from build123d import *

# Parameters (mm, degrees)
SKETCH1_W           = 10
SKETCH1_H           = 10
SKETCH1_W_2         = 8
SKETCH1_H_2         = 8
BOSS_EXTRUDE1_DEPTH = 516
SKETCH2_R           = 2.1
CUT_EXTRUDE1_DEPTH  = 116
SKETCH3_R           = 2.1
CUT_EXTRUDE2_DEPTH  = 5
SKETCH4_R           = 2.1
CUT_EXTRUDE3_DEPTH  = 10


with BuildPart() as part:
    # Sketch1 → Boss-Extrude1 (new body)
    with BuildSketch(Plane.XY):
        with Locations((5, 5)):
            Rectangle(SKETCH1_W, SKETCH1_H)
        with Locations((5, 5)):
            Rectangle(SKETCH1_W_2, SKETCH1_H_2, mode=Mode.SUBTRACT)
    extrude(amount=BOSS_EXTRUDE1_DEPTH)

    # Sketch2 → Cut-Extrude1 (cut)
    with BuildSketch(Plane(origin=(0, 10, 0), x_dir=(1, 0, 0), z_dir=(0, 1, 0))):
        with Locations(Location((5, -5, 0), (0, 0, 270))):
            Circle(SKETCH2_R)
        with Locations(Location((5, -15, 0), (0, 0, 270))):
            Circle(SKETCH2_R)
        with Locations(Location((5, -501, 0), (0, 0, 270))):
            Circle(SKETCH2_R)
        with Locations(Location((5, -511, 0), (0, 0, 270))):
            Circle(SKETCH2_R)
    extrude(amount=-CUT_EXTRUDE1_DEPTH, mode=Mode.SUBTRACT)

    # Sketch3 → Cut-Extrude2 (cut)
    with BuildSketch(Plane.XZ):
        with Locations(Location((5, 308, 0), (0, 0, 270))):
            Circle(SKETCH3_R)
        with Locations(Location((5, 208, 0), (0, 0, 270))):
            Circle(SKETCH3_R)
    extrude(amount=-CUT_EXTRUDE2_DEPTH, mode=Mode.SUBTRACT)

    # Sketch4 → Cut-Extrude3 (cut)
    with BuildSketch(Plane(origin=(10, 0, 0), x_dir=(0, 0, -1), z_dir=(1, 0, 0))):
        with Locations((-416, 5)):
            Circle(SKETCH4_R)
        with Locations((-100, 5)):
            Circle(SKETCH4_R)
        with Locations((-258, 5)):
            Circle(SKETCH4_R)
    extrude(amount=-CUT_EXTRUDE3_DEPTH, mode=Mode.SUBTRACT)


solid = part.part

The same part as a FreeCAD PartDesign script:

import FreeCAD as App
import Part
import Sketcher

doc = App.newDocument("Part")
body = doc.addObject("PartDesign::Body", "Body")

# Sketch on XY plane
sketch1 = body.newObject("Sketcher::SketchObject", "Sketch")
sketch1.AttachmentSupport = (doc.getObject("XY_Plane"), [""])
sketch1.MapMode = "FlatFace"
sketch1.addGeometry(Part.LineSegment(App.Vector(0, 10, 0), App.Vector(0, 0, 0)), False)
sketch1.addGeometry(Part.LineSegment(App.Vector(0, 0, 0), App.Vector(10, 0, 0)), False)
sketch1.addGeometry(Part.LineSegment(App.Vector(10, 0, 0), App.Vector(10, 10, 0)), False)
sketch1.addGeometry(Part.LineSegment(App.Vector(10, 10, 0), App.Vector(0, 10, 0)), False)
sketch1.addGeometry(Part.LineSegment(App.Vector(9, 1, 0), App.Vector(1, 1, 0)), False)
sketch1.addGeometry(Part.LineSegment(App.Vector(1, 1, 0), App.Vector(1, 9, 0)), False)
sketch1.addGeometry(Part.LineSegment(App.Vector(1, 9, 0), App.Vector(9, 9, 0)), False)
sketch1.addGeometry(Part.LineSegment(App.Vector(9, 9, 0), App.Vector(9, 1, 0)), False)
sketch1.addConstraint(Sketcher.Constraint("Coincident", 0, 2, 1, 1))
sketch1.addConstraint(Sketcher.Constraint("Coincident", 1, 2, 2, 1))
sketch1.addConstraint(Sketcher.Constraint("Coincident", 2, 2, 3, 1))
sketch1.addConstraint(Sketcher.Constraint("Coincident", 3, 2, 0, 1))
sketch1.addConstraint(Sketcher.Constraint("Coincident", 4, 2, 5, 1))
sketch1.addConstraint(Sketcher.Constraint("Coincident", 5, 2, 6, 1))
sketch1.addConstraint(Sketcher.Constraint("Coincident", 6, 2, 7, 1))
sketch1.addConstraint(Sketcher.Constraint("Coincident", 7, 2, 4, 1))
sketch1.addConstraint(Sketcher.Constraint("Vertical", 0))
sketch1.addConstraint(Sketcher.Constraint("Horizontal", 1))
sketch1.addConstraint(Sketcher.Constraint("Vertical", 2))
sketch1.addConstraint(Sketcher.Constraint("Horizontal", 3))
sketch1.addConstraint(Sketcher.Constraint("Horizontal", 4))
sketch1.addConstraint(Sketcher.Constraint("Vertical", 5))
sketch1.addConstraint(Sketcher.Constraint("Horizontal", 6))
sketch1.addConstraint(Sketcher.Constraint("Vertical", 7))
sketch1.addConstraint(Sketcher.Constraint("Coincident", 0, 2, -1, 1))
sketch1.addConstraint(Sketcher.Constraint("Equal", 3, 0))
sketch1.addConstraint(Sketcher.Constraint("Equal", 6, 5))
sketch1.addConstraint(Sketcher.Constraint("DistanceX", 1, 1, 1, 2, 10.0))
sketch1.addConstraint(Sketcher.Constraint("DistanceX", 4, 2, 4, 1, 8.0))
sketch1.addConstraint(Sketcher.Constraint("DistanceX", -1, 1, 4, 2, 1.0))
sketch1.addConstraint(Sketcher.Constraint("DistanceY", -1, 1, 4, 2, 1.0))
pad1 = body.newObject("PartDesign::Pad", "Pad")
pad1.Profile = sketch1
pad1.Length = 516

# Sketch on XZ plane
sketch2 = body.newObject("Sketcher::SketchObject", "Sketch001")
sketch2.AttachmentSupport = (doc.getObject("XZ_Plane"), [""])
sketch2.MapMode = "FlatFace"
sketch2.AttachmentOffset = App.Placement(App.Vector(0, 0, -10), App.Rotation())
sketch2.addGeometry(Part.Circle(App.Vector(5, 5, 0), App.Vector(0, 0, 1), 2.1), False)
sketch2.addGeometry(Part.Circle(App.Vector(5, 15, 0), App.Vector(0, 0, 1), 2.1), False)
sketch2.addGeometry(Part.Circle(App.Vector(5, 501, 0), App.Vector(0, 0, 1), 2.1), False)
sketch2.addGeometry(Part.Circle(App.Vector(5, 511, 0), App.Vector(0, 0, 1), 2.1), False)
sketch2.addConstraint(Sketcher.Constraint("Equal", 0, 1))
sketch2.addConstraint(Sketcher.Constraint("Equal", 1, 2))
sketch2.addConstraint(Sketcher.Constraint("Equal", 2, 3))
sketch2.addConstraint(Sketcher.Constraint("Vertical", 0, 3, 1, 3))
sketch2.addConstraint(Sketcher.Constraint("Vertical", 1, 3, 2, 3))
sketch2.addConstraint(Sketcher.Constraint("Vertical", 2, 3, 3, 3))
sketch2.addConstraint(Sketcher.Constraint("Diameter", 0, 4.2))
sketch2.addConstraint(Sketcher.Constraint("DistanceX", -1, 1, 0, 3, 5.0))
sketch2.addConstraint(Sketcher.Constraint("DistanceY", -1, 1, 0, 3, 5.0))
sketch2.addConstraint(Sketcher.Constraint("DistanceY", -1, 1, 1, 3, 15.0))
sketch2.addConstraint(Sketcher.Constraint("DistanceY", -1, 1, 2, 3, 501.0))
sketch2.addConstraint(Sketcher.Constraint("DistanceY", -1, 1, 3, 3, 511.0))
pocket1 = body.newObject("PartDesign::Pocket", "Pocket")
pocket1.Profile = sketch2
pocket1.Length = 116
pocket1.Reversed = True

# Sketch on XZ plane
sketch3 = body.newObject("Sketcher::SketchObject", "Sketch002")
sketch3.AttachmentSupport = (doc.getObject("XZ_Plane"), [""])
sketch3.MapMode = "FlatFace"
sketch3.addGeometry(Part.Circle(App.Vector(5, 308, 0), App.Vector(0, 0, 1), 2.1), False)
sketch3.addGeometry(Part.Circle(App.Vector(5, 208, 0), App.Vector(0, 0, 1), 2.1), False)
sketch3.addConstraint(Sketcher.Constraint("Equal", 0, 1))
sketch3.addConstraint(Sketcher.Constraint("Vertical", 0, 3, 1, 3))
sketch3.addConstraint(Sketcher.Constraint("Diameter", 0, 4.2))
sketch3.addConstraint(Sketcher.Constraint("DistanceX", -1, 1, 0, 3, 5.0))
sketch3.addConstraint(Sketcher.Constraint("DistanceY", -1, 1, 0, 3, 308.0))
sketch3.addConstraint(Sketcher.Constraint("DistanceY", -1, 1, 1, 3, 208.0))
pocket2 = body.newObject("PartDesign::Pocket", "Pocket001")
pocket2.Profile = sketch3
pocket2.Length = 5

# Sketch on YZ plane
sketch4 = body.newObject("Sketcher::SketchObject", "Sketch003")
sketch4.AttachmentSupport = (doc.getObject("YZ_Plane"), [""])
sketch4.MapMode = "FlatFace"
sketch4.AttachmentOffset = App.Placement(App.Vector(0, 0, 10), App.Rotation())
sketch4.addGeometry(Part.Circle(App.Vector(5, 416, 0), App.Vector(0, 0, 1), 2.1), False)
sketch4.addGeometry(Part.Circle(App.Vector(5, 100, 0), App.Vector(0, 0, 1), 2.1), False)
sketch4.addGeometry(Part.Circle(App.Vector(5, 258, 0), App.Vector(0, 0, 1), 2.1), False)
sketch4.addConstraint(Sketcher.Constraint("Equal", 0, 1))
sketch4.addConstraint(Sketcher.Constraint("Equal", 1, 2))
sketch4.addConstraint(Sketcher.Constraint("Vertical", 0, 3, 1, 3))
sketch4.addConstraint(Sketcher.Constraint("Vertical", 1, 3, 2, 3))
sketch4.addConstraint(Sketcher.Constraint("Diameter", 0, 4.2))
sketch4.addConstraint(Sketcher.Constraint("DistanceX", -1, 1, 0, 3, 5.0))
sketch4.addConstraint(Sketcher.Constraint("DistanceY", -1, 1, 0, 3, 416.0))
sketch4.addConstraint(Sketcher.Constraint("DistanceY", -1, 1, 1, 3, 100.0))
sketch4.addConstraint(Sketcher.Constraint("DistanceY", -1, 1, 2, 3, 258.0))
pocket3 = body.newObject("PartDesign::Pocket", "Pocket002")
pocket3.Profile = sketch4
pocket3.Length = 10

doc.recompute()
